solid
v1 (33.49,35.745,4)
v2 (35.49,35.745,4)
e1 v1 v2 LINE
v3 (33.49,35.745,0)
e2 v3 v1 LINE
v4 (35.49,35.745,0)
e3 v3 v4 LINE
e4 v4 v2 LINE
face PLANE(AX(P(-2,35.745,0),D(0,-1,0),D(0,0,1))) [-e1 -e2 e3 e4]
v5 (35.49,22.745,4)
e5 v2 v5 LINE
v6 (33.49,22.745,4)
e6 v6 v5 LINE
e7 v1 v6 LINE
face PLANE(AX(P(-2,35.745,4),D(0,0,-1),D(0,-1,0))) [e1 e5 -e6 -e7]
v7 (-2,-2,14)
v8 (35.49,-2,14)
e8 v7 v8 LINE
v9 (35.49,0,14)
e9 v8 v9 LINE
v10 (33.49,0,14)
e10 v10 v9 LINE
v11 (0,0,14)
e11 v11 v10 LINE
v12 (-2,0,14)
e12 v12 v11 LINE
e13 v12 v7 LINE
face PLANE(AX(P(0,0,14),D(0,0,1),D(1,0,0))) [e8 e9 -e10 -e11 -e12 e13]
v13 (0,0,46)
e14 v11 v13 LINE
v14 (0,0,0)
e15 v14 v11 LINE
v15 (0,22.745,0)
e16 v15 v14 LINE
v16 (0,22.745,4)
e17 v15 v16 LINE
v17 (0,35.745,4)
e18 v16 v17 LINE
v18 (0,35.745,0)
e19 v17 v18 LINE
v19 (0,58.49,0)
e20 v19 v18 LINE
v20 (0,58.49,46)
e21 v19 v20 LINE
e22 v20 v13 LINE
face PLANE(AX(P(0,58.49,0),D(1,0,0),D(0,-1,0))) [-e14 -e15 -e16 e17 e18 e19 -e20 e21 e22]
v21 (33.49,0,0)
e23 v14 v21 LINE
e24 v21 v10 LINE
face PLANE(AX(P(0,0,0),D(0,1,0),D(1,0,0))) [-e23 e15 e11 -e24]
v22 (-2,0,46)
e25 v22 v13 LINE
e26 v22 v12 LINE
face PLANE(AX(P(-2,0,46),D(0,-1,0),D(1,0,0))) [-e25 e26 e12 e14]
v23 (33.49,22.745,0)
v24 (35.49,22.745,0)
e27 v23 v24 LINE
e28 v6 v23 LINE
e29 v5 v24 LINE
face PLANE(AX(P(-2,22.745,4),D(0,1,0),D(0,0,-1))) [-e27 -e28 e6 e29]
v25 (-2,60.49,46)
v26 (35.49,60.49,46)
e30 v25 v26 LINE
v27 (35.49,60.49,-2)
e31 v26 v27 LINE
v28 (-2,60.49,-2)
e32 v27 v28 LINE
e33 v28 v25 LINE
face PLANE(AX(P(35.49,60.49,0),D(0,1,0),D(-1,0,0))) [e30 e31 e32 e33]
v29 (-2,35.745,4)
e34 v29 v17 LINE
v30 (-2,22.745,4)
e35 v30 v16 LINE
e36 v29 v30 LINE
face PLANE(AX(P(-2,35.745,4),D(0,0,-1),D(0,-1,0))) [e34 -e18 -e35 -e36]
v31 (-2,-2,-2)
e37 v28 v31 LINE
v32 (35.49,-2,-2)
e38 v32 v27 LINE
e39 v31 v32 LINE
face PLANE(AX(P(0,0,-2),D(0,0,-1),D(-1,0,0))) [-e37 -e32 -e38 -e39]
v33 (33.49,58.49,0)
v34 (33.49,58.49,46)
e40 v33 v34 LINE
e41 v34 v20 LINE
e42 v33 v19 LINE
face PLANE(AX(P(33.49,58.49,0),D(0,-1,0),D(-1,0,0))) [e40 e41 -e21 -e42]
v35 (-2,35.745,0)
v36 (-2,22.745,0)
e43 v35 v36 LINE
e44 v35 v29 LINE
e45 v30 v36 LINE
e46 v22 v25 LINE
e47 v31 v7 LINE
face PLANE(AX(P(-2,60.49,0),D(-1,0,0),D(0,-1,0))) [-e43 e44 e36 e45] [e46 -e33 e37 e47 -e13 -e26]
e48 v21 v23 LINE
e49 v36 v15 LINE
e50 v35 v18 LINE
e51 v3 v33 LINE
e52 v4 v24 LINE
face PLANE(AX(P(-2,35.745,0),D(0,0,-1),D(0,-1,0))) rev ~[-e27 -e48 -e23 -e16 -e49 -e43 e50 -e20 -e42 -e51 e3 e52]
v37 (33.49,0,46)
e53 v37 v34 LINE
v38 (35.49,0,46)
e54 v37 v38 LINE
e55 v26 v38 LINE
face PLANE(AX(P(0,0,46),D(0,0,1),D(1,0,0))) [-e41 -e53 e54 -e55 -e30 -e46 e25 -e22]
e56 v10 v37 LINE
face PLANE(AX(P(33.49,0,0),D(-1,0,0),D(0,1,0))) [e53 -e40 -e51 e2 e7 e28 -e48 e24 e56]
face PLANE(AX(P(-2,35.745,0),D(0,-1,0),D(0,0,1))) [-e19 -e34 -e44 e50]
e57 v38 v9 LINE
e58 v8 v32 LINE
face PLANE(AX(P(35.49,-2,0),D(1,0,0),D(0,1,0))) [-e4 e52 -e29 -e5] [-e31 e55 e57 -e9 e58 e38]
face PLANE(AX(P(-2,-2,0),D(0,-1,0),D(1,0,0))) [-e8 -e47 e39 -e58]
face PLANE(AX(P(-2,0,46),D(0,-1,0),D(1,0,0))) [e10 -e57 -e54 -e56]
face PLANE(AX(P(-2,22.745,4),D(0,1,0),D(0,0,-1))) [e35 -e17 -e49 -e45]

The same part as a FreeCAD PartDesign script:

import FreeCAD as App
import Part
import Sketcher
Q = App.Units.Quantity

doc = App.newDocument("Part")
params = doc.addObject("Spreadsheet::Sheet", "Params")
for row, (alias, value) in enumerate([
    ("sketch1_width", "33.49 mm"),
    ("sketch1_height", "58.49 mm"),
    ("pad1_length", "46 mm"),
    ("sketch2_height", "2 mm"),
    ("sketch2_width", "37.49 mm"),
    ("pocket1_length", "32 mm"),
    ("sketch3_width", "37.49 mm"),
    ("sketch3_height", "62.49 mm"),
    ("pad2_length", "2 mm"),
    ("sketch4_width", "13 mm"),
    ("sketch4_height", "4 mm"),
    ("pocket2_length", "37.49 mm"),
], start=1):
    params.set(f"A{row}", alias)
    params.set(f"B{row}", "=" + value)
    params.setAlias(f"B{row}", alias)

body = doc.addObject("PartDesign::Body", "Body")

# Sketch on XY plane
sketch1 = body.newObject("Sketcher::SketchObject", "Sketch")
sketch1.AttachmentSupport = (doc.getObject("XY_Plane"), [""])
sketch1.MapMode = "FlatFace"
sketch1.addGeometry(Part.LineSegment(App.Vector(35.49, 60.49, 0), App.Vector(-2, 60.49, 0)), False)
sketch1.addGeometry(Part.LineSegment(App.Vector(-2, 60.49, 0), App.Vector(-2, -2, 0)), False)
sketch1.addGeometry(Part.LineSegment(App.Vector(-2, -2, 0), App.Vector(35.49, -2, 0)), False)
sketch1.addGeometry(Part.LineSegment(App.Vector(35.49, -2, 0), App.Vector(35.49, 60.49, 0)), False)
sketch1.addGeometry(Part.LineSegment(App.Vector(33.49, 0, 0), App.Vector(0, 0, 0)), False)
sketch1.addGeometry(Part.LineSegment(App.Vector(0, 0, 0), App.Vector(0, 58.49, 0)), False)
sketch1.addGeometry(Part.LineSegment(App.Vector(0, 58.49, 0), App.Vector(33.49, 58.49, 0)), False)
sketch1.addGeometry(Part.LineSegment(App.Vector(33.49, 58.49, 0), App.Vector(33.49, 0, 0)), False)
sketch1.addConstraint(Sketcher.Constraint("Coincident", 0, 2, 1, 1))
sketch1.addConstraint(Sketcher.Constraint("Coincident", 1, 2, 2, 1))
sketch1.addConstraint(Sketcher.Constraint("Coincident", 2, 2, 3, 1))
sketch1.addConstraint(Sketcher.Constraint("Coincident", 3, 2, 0, 1))
sketch1.addConstraint(Sketcher.Constraint("Coincident", 4, 2, 5, 1))
sketch1.addConstraint(Sketcher.Constraint("Coincident", 5, 2, 6, 1))
sketch1.addConstraint(Sketcher.Constraint("Coincident", 6, 2, 7, 1))
sketch1.addConstraint(Sketcher.Constraint("Coincident", 7, 2, 4, 1))
sketch1.addConstraint(Sketcher.Constraint("Horizontal", 0))
sketch1.addConstraint(Sketcher.Constraint("Vertical", 1))
sketch1.addConstraint(Sketcher.Constraint("Horizontal", 2))
sketch1.addConstraint(Sketcher.Constraint("Vertical", 3))
sketch1.addConstraint(Sketcher.Constraint("Horizontal", 4))
sketch1.addConstraint(Sketcher.Constraint("Vertical", 5))
sketch1.addConstraint(Sketcher.Constraint("Horizontal", 6))
sketch1.addConstraint(Sketcher.Constraint("Vertical", 7))
sketch1.addConstraint(Sketcher.Constraint("Coincident", 4, 2, -1, 1))
sketch1.addConstraint(Sketcher.Constraint("DistanceX", 0, 2, -1, 1, Q("2 mm")))
sketch1.addConstraint(Sketcher.Constraint("DistanceY", 1, 2, -1, 1, Q("2 mm")))
sketch1.addConstraint(Sketcher.Constraint("DistanceY", 5, 2, 0, 2, Q("2 mm")))
sketch1.addConstraint(Sketcher.Constraint("DistanceX", 6, 2, 3, 2, Q("2 mm")))
sketch1.addConstraint(Sketcher.Constraint("DistanceX", 4, 2, 4, 1, Q("33.49 mm")))
sketch1.addConstraint(Sketcher.Constraint("DistanceY", 5, 1, 5, 2, Q("58.49 mm")))
sketch1.setExpression("Constraints[21]", "Params.sketch1_width")
sketch1.setExpression("Constraints[22]", "Params.sketch1_height")
pad1 = body.newObject("PartDesign::Pad", "Pad")
pad1.Profile = sketch1
pad1.setExpression("Length", "Params.pad1_length")

# Sketch on XY plane
sketch2 = body.newObject("Sketcher::SketchObject", "Sketch001")
sketch2.AttachmentSupport = (doc.getObject("XY_Plane"), [""])
sketch2.MapMode = "FlatFace"
sketch2.AttachmentOffset = App.Placement(App.Vector(0, 0, 46), App.Rotation())
sketch2.addGeometry(Part.LineSegment(App.Vector(35.49, 0, 0), App.Vector(-2, 0, 0)), False)
sketch2.addGeometry(Part.LineSegment(App.Vector(-2, 0, 0), App.Vector(-2, -2, 0)), False)
sketch2.addGeometry(Part.LineSegment(App.Vector(-2, -2, 0), App.Vector(35.49, -2, 0)), False)
sketch2.addGeometry(Part.LineSegment(App.Vector(35.49, -2, 0), App.Vector(35.49, 0, 0)), False)
sketch2.addConstraint(Sketcher.Constraint("Coincident", 0, 2, 1, 1))
sketch2.addConstraint(Sketcher.Constraint("Coincident", 1, 2, 2, 1))
sketch2.addConstraint(Sketcher.Constraint("Coincident", 2, 2, 3, 1))
sketch2.addConstraint(Sketcher.Constraint("Coincident", 3, 2, 0, 1))
sketch2.addConstraint(Sketcher.Constraint("Horizontal", 0))
sketch2.addConstraint(Sketcher.Constraint("Vertical", 1))
sketch2.addConstraint(Sketcher.Constraint("Horizontal", 2))
sketch2.addConstraint(Sketcher.Constraint("Vertical", 3))
sketch2.addConstraint(Sketcher.Constraint("PointOnObject", 0, 2, -1))
sketch2.addConstraint(Sketcher.Constraint("DistanceY", 1, 2, 1, 1, Q("2 mm")))
sketch2.addConstraint(Sketcher.Constraint("DistanceX", 0, 2, -1, 1, Q("2 mm")))
sketch2.addConstraint(Sketcher.Constraint("DistanceX", 0, 2, 0, 1, Q("37.49 mm")))
sketch2.setExpression("Constraints[9]", "Params.sketch2_height")
sketch2.setExpression("Constraints[11]", "Params.sketch2_width")
pocket1 = body.newObject("PartDesign::Pocket", "Pocket")
pocket1.Profile = sketch2
pocket1.setExpression("Length", "Params.pocket1_length")

# Sketch on XY plane
sketch3 = body.newObject("Sketcher::SketchObject", "Sketch002")
sketch3.AttachmentSupport = (doc.getObject("XY_Plane"), [""])
sketch3.MapMode = "FlatFace"
sketch3.addGeometry(Part.LineSegment(App.Vector(-2, 60.49, 0), App.Vector(35.49, 60.49, 0)), False)
sketch3.addGeometry(Part.LineSegment(App.Vector(35.49, 60.49, 0), App.Vector(35.49, -2, 0)), False)
sketch3.addGeometry(Part.LineSegment(App.Vector(35.49, -2, 0), App.Vector(-2, -2, 0)), False)
sketch3.addGeometry(Part.LineSegment(App.Vector(-2, -2, 0), App.Vector(-2, 60.49, 0)), False)
sketch3.addConstraint(Sketcher.Constraint("Coincident", 0, 2, 1, 1))
sketch3.addConstraint(Sketcher.Constraint("Coincident", 1, 2, 2, 1))
sketch3.addConstraint(Sketcher.Constraint("Coincident", 2, 2, 3, 1))
sketch3.addConstraint(Sketcher.Constraint("Coincident", 3, 2, 0, 1))
sketch3.addConstraint(Sketcher.Constraint("Horizontal", 0))
sketch3.addConstraint(Sketcher.Constraint("Vertical", 1))
sketch3.addConstraint(Sketcher.Constraint("Horizontal", 2))
sketch3.addConstraint(Sketcher.Constraint("Vertical", 3))
sketch3.addConstraint(Sketcher.Constraint("DistanceY", 1, 2, -1, 1, Q("2 mm")))
sketch3.addConstraint(Sketcher.Constraint("DistanceX", 2, 2, -1, 1, Q("2 mm")))
sketch3.addConstraint(Sketcher.Constraint("DistanceX", 0, 1, 0, 2, Q("37.49 mm")))
sketch3.addConstraint(Sketcher.Constraint("DistanceY", 1, 2, 1, 1, Q("62.49 mm")))
sketch3.setExpression("Constraints[10]", "Params.sketch3_width")
sketch3.setExpression("Constraints[11]", "Params.sketch3_height")
pad2 = body.newObject("PartDesign::Pad", "Pad001")
pad2.Profile = sketch3
pad2.setExpression("Length", "Params.pad2_length")
pad2.Reversed = True

# Sketch on YZ plane
sketch4 = body.newObject("Sketcher::SketchObject", "Sketch003")
sketch4.AttachmentSupport = (doc.getObject("YZ_Plane"), [""])
sketch4.MapMode = "FlatFace"
sketch4.AttachmentOffset = App.Placement(App.Vector(0, 0, -2), App.Rotation())
sketch4.addGeometry(Part.LineSegment(App.Vector(35.745, 0, 0), App.Vector(22.745, 0, 0)), False)
sketch4.addGeometry(Part.LineSegment(App.Vector(22.745, 0, 0), App.Vector(22.745, 4, 0)), False)
sketch4.addGeometry(Part.LineSegment(App.Vector(22.745, 4, 0), App.Vector(35.745, 4, 0)), False)
sketch4.addGeometry(Part.LineSegment(App.Vector(35.745, 4, 0), App.Vector(35.745, 0, 0)), False)
sketch4.addConstraint(Sketcher.Constraint("Coincident", 0, 2, 1, 1))
sketch4.addConstraint(Sketcher.Constraint("Coincident", 1, 2, 2, 1))
sketch4.addConstraint(Sketcher.Constraint("Coincident", 2, 2, 3, 1))
sketch4.addConstraint(Sketcher.Constraint("Coincident", 3, 2, 0, 1))
sketch4.addConstraint(Sketcher.Constraint("Horizontal", 0))
sketch4.addConstraint(Sketcher.Constraint("Vertical", 1))
sketch4.addConstraint(Sketcher.Constraint("Horizontal", 2))
sketch4.addConstraint(Sketcher.Constraint("Vertical", 3))
sketch4.addConstraint(Sketcher.Constraint("PointOnObject", 0, 2, -1))
sketch4.addConstraint(Sketcher.Constraint("DistanceX", 0, 2, 0, 1, Q("13 mm")))
sketch4.addConstraint(Sketcher.Constraint("DistanceY", 1, 1, 1, 2, Q("4 mm")))
sketch4.addConstraint(Sketcher.Constraint("DistanceX", -1, 1, 0, 2, Q("22.745 mm")))
sketch4.setExpression("Constraints[9]", "Params.sketch4_width")
sketch4.setExpression("Constraints[10]", "Params.sketch4_height")
pocket2 = body.newObject("PartDesign::Pocket", "Pocket001")
pocket2.Profile = sketch4
pocket2.setExpression("Length", "Params.pocket2_length")
pocket2.Reversed = True

doc.recompute()
